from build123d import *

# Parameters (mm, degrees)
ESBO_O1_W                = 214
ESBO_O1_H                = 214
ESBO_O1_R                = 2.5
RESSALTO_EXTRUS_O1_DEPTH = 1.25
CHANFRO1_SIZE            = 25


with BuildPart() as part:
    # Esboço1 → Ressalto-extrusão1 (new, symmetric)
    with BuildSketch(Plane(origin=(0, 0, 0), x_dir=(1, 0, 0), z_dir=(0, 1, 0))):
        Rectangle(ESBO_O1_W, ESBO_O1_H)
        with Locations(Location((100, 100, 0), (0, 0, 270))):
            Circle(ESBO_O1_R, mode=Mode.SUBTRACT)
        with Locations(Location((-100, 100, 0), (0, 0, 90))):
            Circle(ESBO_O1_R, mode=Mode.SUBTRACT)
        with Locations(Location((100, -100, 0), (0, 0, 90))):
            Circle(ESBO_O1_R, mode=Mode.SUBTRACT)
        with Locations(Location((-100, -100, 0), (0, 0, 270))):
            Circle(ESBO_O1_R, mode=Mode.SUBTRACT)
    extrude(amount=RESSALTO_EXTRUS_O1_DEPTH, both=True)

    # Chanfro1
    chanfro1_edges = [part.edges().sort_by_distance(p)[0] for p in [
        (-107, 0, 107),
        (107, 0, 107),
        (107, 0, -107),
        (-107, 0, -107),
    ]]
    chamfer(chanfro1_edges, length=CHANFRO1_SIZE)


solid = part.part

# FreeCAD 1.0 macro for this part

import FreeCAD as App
import Part
import Sketcher
from FreeCAD import Vector
Q = App.Units.Quantity


def edges_at(feature, points):
    """Names of the edges that pass closest to the given points."""
    edges = feature.Shape.Edges
    near = lambda p: min(range(len(edges)), key=lambda i: edges[i].distToShape(Part.Vertex(*p))[0])
    return sorted({f"Edge{near(p) + 1}" for p in points})

doc = App.newDocument("Part")
body = doc.addObject("PartDesign::Body", "Body")

sketch1 = body.newObject("Sketcher::SketchObject", "Sketch")
sketch1.AttachmentSupport = (doc.getObject("XZ_Plane"), [""])
sketch1.MapMode = "FlatFace"
sketch1.addGeometry(Part.LineSegment(Vector(-107, -107, 0), Vector(-107, 107, 0)), False)
sketch1.addGeometry(Part.LineSegment(Vector(-107, 107, 0), Vector(107, 107, 0)), False)
sketch1.addGeometry(Part.LineSegment(Vector(107, 107, 0), Vector(107, -107, 0)), False)
sketch1.addGeometry(Part.LineSegment(Vector(107, -107, 0), Vector(-107, -107, 0)), False)
sketch1.addGeometry(Part.Circle(Vector(-100, 100, 0), Vector(0, 0, 1), 2.5), False)
sketch1.addGeometry(Part.Circle(Vector(100, 100, 0), Vector(0, 0, 1), 2.5), False)
sketch1.addGeometry(Part.Circle(Vector(-100, -100, 0), Vector(0, 0, 1), 2.5), False)
sketch1.addGeometry(Part.Circle(Vector(100, -100, 0), Vector(0, 0, 1), 2.5), False)
sketch1.addConstraint(Sketcher.Constraint("Coincident", 0, 2, 1, 1))
sketch1.addConstraint(Sketcher.Constraint("Coincident", 1, 2, 2, 1))
sketch1.addConstraint(Sketcher.Constraint("Coincident", 2, 2, 3, 1))
sketch1.addConstraint(Sketcher.Constraint("Coincident", 3, 2, 0, 1))
sketch1.addConstraint(Sketcher.Constraint("Vertical", 0))
sketch1.addConstraint(Sketcher.Constraint("Horizontal", 1))
sketch1.addConstraint(Sketcher.Constraint("Vertical", 2))
sketch1.addConstraint(Sketcher.Constraint("Horizontal", 3))
sketch1.addConstraint(Sketcher.Constraint("Equal", 4, 5))
sketch1.addConstraint(Sketcher.Constraint("Equal", 5, 6))
sketch1.addConstraint(Sketcher.Constraint("Equal", 6, 7))
sketch1.addConstraint(Sketcher.Constraint("Symmetric", 5, 3, 6, 3, -1, 1))
sketch1.addConstraint(Sketcher.Constraint("Symmetric", 4, 3, 7, 3, -1, 1))
sketch1.addConstraint(Sketcher.Constraint("Symmetric", 0, 2, 2, 2, -1, 1))
sketch1.addConstraint(Sketcher.Constraint("Symmetric", 4, 3, 5, 3, -2))
sketch1.addConstraint(Sketcher.Constraint("Equal", 3, 0))
sketch1.addConstraint(Sketcher.Constraint("Diameter", 4, Q("5 mm")))
sketch1.addConstraint(Sketcher.Constraint("DistanceX", 1, 1, 1, 2, Q("214 mm")))
sketch1.addConstraint(Sketcher.Constraint("DistanceX", 4, 3, -1, 1, Q("100 mm")))
sketch1.addConstraint(Sketcher.Constraint("DistanceY", -1, 1, 4, 3, Q("100 mm")))
pad1 = body.newObject("PartDesign::Pad", "Pad")
pad1.Profile = sketch1
pad1.Length = 2.5
pad1.Midplane = True
doc.recompute()

chamfer = body.newObject("PartDesign::Chamfer", "Chamfer")
chamfer.Base = (pad1, edges_at(pad1, [
    (-107, 0, 107),
    (107, 0, 107),
    (107, 0, -107),
    (-107, 0, -107),
]))
chamfer.Size = 25

doc.recompute()
